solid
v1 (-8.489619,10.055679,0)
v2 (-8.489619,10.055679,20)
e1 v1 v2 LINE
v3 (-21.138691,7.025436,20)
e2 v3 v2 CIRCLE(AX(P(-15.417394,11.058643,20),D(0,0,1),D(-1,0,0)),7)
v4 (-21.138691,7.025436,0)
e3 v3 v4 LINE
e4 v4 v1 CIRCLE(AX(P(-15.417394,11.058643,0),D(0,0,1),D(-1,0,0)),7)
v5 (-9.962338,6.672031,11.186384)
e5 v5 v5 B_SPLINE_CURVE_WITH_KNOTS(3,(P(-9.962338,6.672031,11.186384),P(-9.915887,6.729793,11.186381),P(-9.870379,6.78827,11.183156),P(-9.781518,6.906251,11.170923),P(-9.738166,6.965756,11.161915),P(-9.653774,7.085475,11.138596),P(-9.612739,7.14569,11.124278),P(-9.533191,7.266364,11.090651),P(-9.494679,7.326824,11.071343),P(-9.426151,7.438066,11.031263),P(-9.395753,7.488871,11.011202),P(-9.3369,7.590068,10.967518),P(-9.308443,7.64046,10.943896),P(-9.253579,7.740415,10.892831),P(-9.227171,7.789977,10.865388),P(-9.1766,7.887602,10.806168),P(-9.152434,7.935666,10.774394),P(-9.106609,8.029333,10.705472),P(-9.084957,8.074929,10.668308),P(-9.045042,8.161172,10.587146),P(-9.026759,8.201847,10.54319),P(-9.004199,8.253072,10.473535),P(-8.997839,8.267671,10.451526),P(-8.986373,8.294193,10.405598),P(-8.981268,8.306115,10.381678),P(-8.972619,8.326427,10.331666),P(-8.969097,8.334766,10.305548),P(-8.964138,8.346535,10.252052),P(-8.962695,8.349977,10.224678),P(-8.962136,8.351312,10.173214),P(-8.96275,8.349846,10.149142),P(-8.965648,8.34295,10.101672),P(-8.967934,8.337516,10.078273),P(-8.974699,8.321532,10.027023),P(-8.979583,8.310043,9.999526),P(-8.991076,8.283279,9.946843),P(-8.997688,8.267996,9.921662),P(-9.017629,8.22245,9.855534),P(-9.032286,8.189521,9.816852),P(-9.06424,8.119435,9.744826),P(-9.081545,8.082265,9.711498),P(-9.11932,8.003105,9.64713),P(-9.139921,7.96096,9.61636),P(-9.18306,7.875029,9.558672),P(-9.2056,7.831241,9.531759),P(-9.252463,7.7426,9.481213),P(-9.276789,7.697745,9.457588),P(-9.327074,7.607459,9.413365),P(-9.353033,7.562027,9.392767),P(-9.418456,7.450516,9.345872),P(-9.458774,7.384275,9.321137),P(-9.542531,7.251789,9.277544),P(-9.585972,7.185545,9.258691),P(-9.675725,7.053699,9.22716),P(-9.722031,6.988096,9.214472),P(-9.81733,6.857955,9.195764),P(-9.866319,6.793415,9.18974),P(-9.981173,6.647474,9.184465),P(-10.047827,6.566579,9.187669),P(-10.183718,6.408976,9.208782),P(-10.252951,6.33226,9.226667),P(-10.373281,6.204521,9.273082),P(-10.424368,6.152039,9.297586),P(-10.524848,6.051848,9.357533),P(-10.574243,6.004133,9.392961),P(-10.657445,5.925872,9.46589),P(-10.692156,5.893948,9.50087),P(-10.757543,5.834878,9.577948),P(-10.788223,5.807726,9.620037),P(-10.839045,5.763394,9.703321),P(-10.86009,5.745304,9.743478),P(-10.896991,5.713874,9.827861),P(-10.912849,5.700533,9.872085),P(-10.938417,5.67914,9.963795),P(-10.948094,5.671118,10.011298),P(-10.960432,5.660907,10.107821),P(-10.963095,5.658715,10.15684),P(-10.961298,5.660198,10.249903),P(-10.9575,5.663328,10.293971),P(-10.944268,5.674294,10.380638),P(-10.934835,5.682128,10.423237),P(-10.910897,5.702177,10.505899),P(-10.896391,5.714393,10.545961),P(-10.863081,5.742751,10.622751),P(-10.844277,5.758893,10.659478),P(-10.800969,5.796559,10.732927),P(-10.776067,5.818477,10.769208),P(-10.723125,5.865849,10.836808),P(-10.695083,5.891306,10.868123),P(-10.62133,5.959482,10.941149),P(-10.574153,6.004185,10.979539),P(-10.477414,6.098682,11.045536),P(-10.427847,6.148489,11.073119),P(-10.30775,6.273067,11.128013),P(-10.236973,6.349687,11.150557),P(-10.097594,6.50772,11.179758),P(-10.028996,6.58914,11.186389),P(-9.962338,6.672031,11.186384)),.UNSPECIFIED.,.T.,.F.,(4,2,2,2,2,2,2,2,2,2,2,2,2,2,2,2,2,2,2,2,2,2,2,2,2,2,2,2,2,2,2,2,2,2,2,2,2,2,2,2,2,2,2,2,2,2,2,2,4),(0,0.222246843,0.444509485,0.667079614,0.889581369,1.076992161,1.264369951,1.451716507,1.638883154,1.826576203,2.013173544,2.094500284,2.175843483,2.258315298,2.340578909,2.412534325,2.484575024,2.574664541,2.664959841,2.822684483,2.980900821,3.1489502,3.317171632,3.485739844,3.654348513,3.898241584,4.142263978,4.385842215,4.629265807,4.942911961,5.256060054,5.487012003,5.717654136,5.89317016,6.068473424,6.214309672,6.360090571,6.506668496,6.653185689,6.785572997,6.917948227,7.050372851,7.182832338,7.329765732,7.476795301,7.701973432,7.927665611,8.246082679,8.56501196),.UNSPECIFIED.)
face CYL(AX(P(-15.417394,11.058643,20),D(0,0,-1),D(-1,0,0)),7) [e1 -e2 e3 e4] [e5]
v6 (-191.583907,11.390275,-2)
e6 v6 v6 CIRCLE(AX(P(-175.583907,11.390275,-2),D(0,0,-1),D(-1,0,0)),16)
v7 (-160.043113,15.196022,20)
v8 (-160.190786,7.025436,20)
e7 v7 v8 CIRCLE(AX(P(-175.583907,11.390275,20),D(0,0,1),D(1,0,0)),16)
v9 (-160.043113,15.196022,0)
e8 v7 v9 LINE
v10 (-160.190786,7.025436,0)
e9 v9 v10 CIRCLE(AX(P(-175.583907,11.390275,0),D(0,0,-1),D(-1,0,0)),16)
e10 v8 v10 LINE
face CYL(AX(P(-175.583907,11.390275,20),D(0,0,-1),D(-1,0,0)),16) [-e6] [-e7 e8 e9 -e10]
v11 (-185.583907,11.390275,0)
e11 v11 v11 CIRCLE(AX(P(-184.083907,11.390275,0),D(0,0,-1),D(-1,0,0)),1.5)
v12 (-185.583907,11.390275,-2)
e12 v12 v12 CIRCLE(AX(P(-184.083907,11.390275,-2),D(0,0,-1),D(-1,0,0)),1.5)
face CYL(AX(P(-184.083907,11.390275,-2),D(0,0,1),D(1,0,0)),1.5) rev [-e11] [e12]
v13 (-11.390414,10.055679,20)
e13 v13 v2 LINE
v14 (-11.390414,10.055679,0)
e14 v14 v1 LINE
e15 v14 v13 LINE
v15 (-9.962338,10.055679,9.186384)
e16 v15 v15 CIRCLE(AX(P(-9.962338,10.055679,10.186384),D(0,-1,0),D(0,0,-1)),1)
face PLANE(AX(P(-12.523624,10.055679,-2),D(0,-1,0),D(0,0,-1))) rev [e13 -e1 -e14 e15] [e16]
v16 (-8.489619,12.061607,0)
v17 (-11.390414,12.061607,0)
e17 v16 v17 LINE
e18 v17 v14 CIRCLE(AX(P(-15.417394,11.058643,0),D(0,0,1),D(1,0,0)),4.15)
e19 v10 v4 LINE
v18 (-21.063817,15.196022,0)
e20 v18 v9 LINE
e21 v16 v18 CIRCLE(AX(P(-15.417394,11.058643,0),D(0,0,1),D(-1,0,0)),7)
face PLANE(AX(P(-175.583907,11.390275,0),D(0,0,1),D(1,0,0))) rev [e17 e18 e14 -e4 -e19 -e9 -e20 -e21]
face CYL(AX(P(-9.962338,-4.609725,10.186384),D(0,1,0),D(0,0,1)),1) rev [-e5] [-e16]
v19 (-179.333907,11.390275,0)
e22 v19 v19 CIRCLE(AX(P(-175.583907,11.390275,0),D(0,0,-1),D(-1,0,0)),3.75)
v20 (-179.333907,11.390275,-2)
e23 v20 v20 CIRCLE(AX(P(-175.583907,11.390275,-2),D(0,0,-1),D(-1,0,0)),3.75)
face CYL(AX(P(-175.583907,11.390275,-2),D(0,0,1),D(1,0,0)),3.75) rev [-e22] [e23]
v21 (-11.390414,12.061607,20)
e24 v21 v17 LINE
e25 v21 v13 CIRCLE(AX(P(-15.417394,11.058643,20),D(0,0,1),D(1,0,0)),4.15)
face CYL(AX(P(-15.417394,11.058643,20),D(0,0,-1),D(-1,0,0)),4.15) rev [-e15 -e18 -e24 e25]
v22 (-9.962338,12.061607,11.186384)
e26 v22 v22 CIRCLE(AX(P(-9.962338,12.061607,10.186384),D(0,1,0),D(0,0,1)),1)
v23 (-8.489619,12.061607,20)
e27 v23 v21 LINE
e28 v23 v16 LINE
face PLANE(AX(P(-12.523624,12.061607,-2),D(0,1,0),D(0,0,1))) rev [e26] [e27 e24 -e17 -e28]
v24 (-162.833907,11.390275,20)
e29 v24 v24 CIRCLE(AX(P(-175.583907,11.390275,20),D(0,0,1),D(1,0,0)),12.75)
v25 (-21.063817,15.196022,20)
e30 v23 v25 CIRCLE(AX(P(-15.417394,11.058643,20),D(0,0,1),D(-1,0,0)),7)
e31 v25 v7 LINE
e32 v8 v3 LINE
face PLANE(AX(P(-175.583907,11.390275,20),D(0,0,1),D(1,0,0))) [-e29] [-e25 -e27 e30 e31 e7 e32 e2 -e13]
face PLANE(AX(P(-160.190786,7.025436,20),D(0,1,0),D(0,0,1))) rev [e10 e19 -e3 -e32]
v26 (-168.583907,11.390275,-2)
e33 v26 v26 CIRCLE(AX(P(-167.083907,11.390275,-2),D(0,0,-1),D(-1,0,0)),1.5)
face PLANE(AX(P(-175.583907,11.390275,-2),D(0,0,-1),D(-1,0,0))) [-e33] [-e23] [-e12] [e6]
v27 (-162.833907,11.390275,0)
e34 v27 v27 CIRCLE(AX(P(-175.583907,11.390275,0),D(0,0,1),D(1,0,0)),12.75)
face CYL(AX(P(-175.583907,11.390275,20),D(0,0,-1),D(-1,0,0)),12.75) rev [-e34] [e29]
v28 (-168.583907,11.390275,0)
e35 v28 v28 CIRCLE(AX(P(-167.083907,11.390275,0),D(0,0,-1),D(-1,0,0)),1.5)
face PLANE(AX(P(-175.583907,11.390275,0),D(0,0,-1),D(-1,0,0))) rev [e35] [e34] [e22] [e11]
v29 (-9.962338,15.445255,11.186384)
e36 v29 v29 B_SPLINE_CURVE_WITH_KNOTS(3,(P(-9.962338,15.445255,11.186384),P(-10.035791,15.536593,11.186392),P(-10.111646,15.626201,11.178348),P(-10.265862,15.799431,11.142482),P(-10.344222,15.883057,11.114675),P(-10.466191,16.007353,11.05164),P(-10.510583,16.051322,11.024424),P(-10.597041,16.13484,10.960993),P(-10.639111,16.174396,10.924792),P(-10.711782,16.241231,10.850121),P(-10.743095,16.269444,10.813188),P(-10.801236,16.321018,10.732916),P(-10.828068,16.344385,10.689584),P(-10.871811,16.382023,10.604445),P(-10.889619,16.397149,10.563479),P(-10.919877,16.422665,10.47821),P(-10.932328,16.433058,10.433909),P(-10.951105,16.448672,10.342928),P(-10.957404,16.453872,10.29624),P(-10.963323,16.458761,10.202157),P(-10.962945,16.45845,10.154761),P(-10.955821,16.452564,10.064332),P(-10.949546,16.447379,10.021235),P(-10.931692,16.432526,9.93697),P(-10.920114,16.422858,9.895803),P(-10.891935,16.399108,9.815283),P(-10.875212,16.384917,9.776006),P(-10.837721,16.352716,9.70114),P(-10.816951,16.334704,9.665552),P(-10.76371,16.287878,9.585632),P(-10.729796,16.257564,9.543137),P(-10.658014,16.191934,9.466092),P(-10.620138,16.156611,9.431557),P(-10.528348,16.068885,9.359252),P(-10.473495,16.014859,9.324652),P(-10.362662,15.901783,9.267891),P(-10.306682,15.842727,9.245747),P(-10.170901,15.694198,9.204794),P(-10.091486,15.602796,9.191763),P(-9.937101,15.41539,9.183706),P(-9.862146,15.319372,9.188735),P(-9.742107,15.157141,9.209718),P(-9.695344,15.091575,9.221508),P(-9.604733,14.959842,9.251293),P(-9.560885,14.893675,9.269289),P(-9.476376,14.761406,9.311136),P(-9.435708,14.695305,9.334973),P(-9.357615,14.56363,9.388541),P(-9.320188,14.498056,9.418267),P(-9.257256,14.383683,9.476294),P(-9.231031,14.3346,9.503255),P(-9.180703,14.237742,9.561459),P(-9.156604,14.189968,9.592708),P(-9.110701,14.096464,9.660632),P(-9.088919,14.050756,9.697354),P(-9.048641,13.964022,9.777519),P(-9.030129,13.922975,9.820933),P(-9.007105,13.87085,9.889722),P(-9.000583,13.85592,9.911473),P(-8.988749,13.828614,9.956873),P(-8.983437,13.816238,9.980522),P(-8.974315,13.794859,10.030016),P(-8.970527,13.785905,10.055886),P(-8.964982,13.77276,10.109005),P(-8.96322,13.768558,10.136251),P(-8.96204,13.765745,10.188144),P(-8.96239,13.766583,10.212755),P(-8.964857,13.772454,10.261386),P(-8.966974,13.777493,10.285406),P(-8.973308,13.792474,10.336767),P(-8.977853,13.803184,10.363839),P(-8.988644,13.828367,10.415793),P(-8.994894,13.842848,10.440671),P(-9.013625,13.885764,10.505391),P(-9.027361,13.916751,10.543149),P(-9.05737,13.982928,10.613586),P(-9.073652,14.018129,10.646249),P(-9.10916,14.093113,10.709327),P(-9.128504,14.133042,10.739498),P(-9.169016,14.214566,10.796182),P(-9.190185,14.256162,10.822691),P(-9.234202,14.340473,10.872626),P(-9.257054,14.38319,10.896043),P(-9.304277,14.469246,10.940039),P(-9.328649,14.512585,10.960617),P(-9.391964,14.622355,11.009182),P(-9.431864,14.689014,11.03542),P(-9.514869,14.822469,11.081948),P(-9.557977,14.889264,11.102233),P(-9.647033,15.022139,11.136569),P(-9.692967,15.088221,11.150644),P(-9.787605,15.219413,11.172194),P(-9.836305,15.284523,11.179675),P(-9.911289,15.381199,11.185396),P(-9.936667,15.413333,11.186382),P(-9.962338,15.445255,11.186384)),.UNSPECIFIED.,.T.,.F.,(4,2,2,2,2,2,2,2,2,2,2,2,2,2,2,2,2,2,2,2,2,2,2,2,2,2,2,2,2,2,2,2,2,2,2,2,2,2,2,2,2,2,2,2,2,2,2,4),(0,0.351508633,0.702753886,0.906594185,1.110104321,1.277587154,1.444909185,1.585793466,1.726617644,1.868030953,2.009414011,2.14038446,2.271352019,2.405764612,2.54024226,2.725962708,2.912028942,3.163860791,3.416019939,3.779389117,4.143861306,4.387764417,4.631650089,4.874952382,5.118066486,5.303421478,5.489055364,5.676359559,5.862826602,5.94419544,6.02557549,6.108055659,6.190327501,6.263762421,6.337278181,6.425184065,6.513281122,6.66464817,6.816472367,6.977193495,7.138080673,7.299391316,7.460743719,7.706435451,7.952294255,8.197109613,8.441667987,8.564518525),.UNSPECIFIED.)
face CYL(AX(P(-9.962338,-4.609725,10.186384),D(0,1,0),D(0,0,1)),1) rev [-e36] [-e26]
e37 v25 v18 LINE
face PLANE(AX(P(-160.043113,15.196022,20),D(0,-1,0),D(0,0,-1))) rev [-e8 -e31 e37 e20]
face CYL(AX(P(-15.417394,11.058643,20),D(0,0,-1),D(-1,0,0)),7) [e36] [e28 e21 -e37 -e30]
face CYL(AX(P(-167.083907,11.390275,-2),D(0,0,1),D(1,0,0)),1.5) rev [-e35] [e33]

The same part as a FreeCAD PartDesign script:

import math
import FreeCAD as App
import Part
import Sketcher

doc = App.newDocument("Part")
body = doc.addObject("PartDesign::Body", "Body")

# Sketch on XY plane
sketch1 = body.newObject("Sketcher::SketchObject", "Sketch")
sketch1.AttachmentSupport = (doc.getObject("XY_Plane"), [""])
sketch1.MapMode = "FlatFace"
sketch1.addGeometry([
    Part.LineSegment(App.Vector(-160.2, 7, 0), App.Vector(-21.1, 7, 0)),  # 0
    Part.ArcOfCircle(Part.Circle(App.Vector(-15.4, 11.1, 0), App.Vector(0, 0, 1), 7), math.radians(-145), math.radians(144)),  # 1
    Part.LineSegment(App.Vector(-21.1, 15.2, 0), App.Vector(-160, 15.2, 0)),  # 2
    Part.ArcOfCircle(Part.Circle(App.Vector(-175.6, 11.4, 0), App.Vector(0, 0, 1), 16), math.radians(14), math.radians(344)),  # 3
    Part.Circle(App.Vector(-15.4, 11.1, 0), App.Vector(0, 0, 1), 4.2),  # 4
    Part.Circle(App.Vector(-175.6, 11.4, 0), App.Vector(0, 0, 1), 12.8),  # 5
], False)
sketch1.addConstraint([
    Sketcher.Constraint("Coincident", 0, 2, 1, 1),
    Sketcher.Constraint("Coincident", 1, 2, 2, 1),
    Sketcher.Constraint("Coincident", 2, 2, 3, 1),
    Sketcher.Constraint("Coincident", 3, 2, 0, 1),
    Sketcher.Constraint("Horizontal", 0),
    Sketcher.Constraint("Horizontal", 2),
    Sketcher.Constraint("Coincident", 4, 3, 1, 3),
    Sketcher.Constraint("Coincident", 5, 3, 3, 3),
    Sketcher.Constraint("Radius", 1, 7.0),
    Sketcher.Constraint("Radius", 3, 16.0),
    Sketcher.Constraint("Diameter", 4, 8.3),
    Sketcher.Constraint("Diameter", 5, 25.5),
    Sketcher.Constraint("DistanceX", 0, 1, 0, 2, 139.052095),
    Sketcher.Constraint("DistanceX", 2, 2, 2, 1, 138.979296),
    Sketcher.Constraint("DistanceX", 0, 2, -1, 1, 21.138691),
    Sketcher.Constraint("DistanceY", 1, 3, 3, 3, 0.331632),
    Sketcher.Constraint("DistanceY", 0, 2, 3, 3, 4.364838),
    Sketcher.Constraint("DistanceY", -1, 1, 1, 3, 11.058643),
])
pad1 = body.newObject("PartDesign::Pad", "Pad")
pad1.Profile = sketch1
pad1.Length = 20

# Sketch on XY plane
sketch2 = body.newObject("Sketcher::SketchObject", "Sketch001")
sketch2.AttachmentSupport = (doc.getObject("XY_Plane"), [""])
sketch2.MapMode = "FlatFace"
sketch2.addGeometry([
    Part.Circle(App.Vector(-175.6, 11.4, 0), App.Vector(0, 0, 1), 16),
    Part.Circle(App.Vector(-167.1, 11.4, 0), App.Vector(0, 0, 1), 1.5),
    Part.Circle(App.Vector(-175.6, 11.4, 0), App.Vector(0, 0, 1), 3.8),
    Part.Circle(App.Vector(-184.1, 11.4, 0), App.Vector(0, 0, 1), 1.5),
], False)
sketch2.addConstraint([
    Sketcher.Constraint("Coincident", 2, 3, 0, 3),
    Sketcher.Constraint("Equal", 1, 3),
    Sketcher.Constraint("Horizontal", 0, 3, 1, 3),
    Sketcher.Constraint("Horizontal", 2, 3, 3, 3),
    Sketcher.Constraint("Diameter", 0, 32.0),
    Sketcher.Constraint("Diameter", 1, 3.0),
    Sketcher.Constraint("Diameter", 2, 7.5),
    Sketcher.Constraint("DistanceX", 3, 3, 1, 3, 17.0),
    Sketcher.Constraint("DistanceX", 0, 3, 1, 3, 8.5),
    Sketcher.Constraint("DistanceX", 0, 3, -1, 1, 175.583907),
    Sketcher.Constraint("DistanceY", -1, 1, 0, 3, 11.390275),
])
pad2 = body.newObject("PartDesign::Pad", "Pad001")
pad2.Profile = sketch2
pad2.Length = 2
pad2.Reversed = True

# Sketch on XY plane
sketch3 = body.newObject("Sketcher::SketchObject", "Sketch002")
sketch3.AttachmentSupport = (doc.getObject("XY_Plane"), [""])
sketch3.MapMode = "FlatFace"
sketch3.AttachmentOffset = App.Placement(App.Vector(0, 0, 20), App.Rotation())
sketch3.addGeometry([
    Part.LineSegment(App.Vector(-12.5, 12.1, 0), App.Vector(-12.5, 10.1, 0)),
    Part.LineSegment(App.Vector(-12.5, 10.1, 0), App.Vector(-7.4, 10.1, 0)),
    Part.LineSegment(App.Vector(-7.4, 10.1, 0), App.Vector(-7.4, 12.1, 0)),
    Part.LineSegment(App.Vector(-7.4, 12.1, 0), App.Vector(-12.5, 12.1, 0)),
], False)
sketch3.addConstraint([
    Sketcher.Constraint("Coincident", 0, 2, 1, 1),
    Sketcher.Constraint("Coincident", 1, 2, 2, 1),
    Sketcher.Constraint("Coincident", 2, 2, 3, 1),
    Sketcher.Constraint("Coincident", 3, 2, 0, 1),
    Sketcher.Constraint("Vertical", 0),
    Sketcher.Constraint("Horizontal", 1),
    Sketcher.Constraint("Vertical", 2),
    Sketcher.Constraint("Horizontal", 3),
    Sketcher.Constraint("DistanceX", 1, 1, 1, 2, 5.093214),
    Sketcher.Constraint("DistanceY", 0, 2, 0, 1, 2.005927),
    Sketcher.Constraint("DistanceY", -1, 1, 0, 2, 10.055679),
    Sketcher.Constraint("DistanceX", 1, 2, -1, 1, 7.430409),
])
pocket1 = body.newObject("PartDesign::Pocket", "Pocket")
pocket1.Profile = sketch3
pocket1.Type = "ThroughAll"

# Sketch on XZ plane
sketch4 = body.newObject("Sketcher::SketchObject", "Sketch003")
sketch4.AttachmentSupport = (doc.getObject("XZ_Plane"), [""])
sketch4.MapMode = "FlatFace"
sketch4.AttachmentOffset = App.Placement(App.Vector(0, 0, -10.055679), App.Rotation())
sketch4.addGeometry(Part.Circle(App.Vector(-10, 10.2, 0), App.Vector(0, 0, 1), 1), False)
sketch4.addConstraint([
    Sketcher.Constraint("Diameter", 0, 2.0),
    Sketcher.Constraint("DistanceX", 0, 3, -1, 1, 9.962338),
    Sketcher.Constraint("DistanceY", -1, 1, 0, 3, 10.186384),
])
pocket2 = body.newObject("PartDesign::Pocket", "Pocket001")
pocket2.Profile = sketch4
pocket2.Type = "ThroughAll"
pocket2.Midplane = True

doc.recompute()
